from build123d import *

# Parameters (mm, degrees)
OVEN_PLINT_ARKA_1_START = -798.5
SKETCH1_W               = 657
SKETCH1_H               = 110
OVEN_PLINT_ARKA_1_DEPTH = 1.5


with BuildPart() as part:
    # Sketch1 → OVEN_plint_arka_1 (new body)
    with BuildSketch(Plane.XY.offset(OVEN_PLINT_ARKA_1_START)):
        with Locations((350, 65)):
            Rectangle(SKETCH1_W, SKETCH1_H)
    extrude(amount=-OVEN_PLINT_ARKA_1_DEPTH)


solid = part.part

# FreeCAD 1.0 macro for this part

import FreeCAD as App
import Part
import Sketcher

V = App.Vector


def add_polygon(sketch, points):
    """Adds a closed chain of lines whose ends are joined by coincident constraints."""
    first, n = sketch.GeometryCount, len(points)
    for a, b in zip(points, points[1:] + points[:1]):
        sketch.addGeometry(Part.LineSegment(App.Vector(*a, 0), App.Vector(*b, 0)), False)
    for i in range(n):
        sketch.addConstraint(Sketcher.Constraint("Coincident", first + i, 2, first + (i + 1) % n, 1))

doc = App.newDocument("Part")
body = doc.addObject("PartDesign::Body", "Body")

sketch1 = body.newObject("Sketcher::SketchObject", "Sketch")
sketch1.AttachmentSupport = (doc.getObject("XY_Plane"), [""])
sketch1.MapMode = "FlatFace"
sketch1.AttachmentOffset = App.Placement(V(0, 0, -798.5), App.Rotation())
add_polygon(sketch1, [(22, 120), (22, 10), (678, 10), (678, 120)])
sketch1.addConstraint(Sketcher.Constraint("Vertical", 0))
sketch1.addConstraint(Sketcher.Constraint("Horizontal", 1))
sketch1.addConstraint(Sketcher.Constraint("Vertical", 2))
sketch1.addConstraint(Sketcher.Constraint("Horizontal", 3))
sketch1.addConstraint(Sketcher.Constraint("DistanceX", 1, 1, 1, 2, 657.0))
sketch1.addConstraint(Sketcher.Constraint("DistanceY", 0, 2, 0, 1, 110.0))
sketch1.addConstraint(Sketcher.Constraint("DistanceY", -1, 1, 0, 2, 10.0))
sketch1.addConstraint(Sketcher.Constraint("DistanceX", -1, 1, 0, 2, 21.5))
pad1 = body.newObject("PartDesign::Pad", "Pad")
pad1.Profile = sketch1
pad1.Length = 1.5
pad1.Reversed = True

doc.recompute()
